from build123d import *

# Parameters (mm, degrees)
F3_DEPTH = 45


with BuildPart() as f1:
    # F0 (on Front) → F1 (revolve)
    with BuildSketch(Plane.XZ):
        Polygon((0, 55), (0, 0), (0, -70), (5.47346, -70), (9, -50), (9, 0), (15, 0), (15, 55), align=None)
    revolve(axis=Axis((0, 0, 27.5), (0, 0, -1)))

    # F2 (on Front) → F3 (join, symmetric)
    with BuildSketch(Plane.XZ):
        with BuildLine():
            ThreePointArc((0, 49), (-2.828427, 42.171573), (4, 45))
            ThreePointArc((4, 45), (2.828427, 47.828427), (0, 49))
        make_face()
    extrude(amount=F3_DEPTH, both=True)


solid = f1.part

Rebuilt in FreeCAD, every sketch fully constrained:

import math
import FreeCAD as App
import Part
import Sketcher
from FreeCAD import Vector
Q = App.Units.Quantity


def add_polygon(sketch, points):
    """Adds a closed chain of lines whose ends are joined by coincident constraints."""
    first, n = sketch.GeometryCount, len(points)
    for a, b in zip(points, points[1:] + points[:1]):
        sketch.addGeometry(Part.LineSegment(App.Vector(*a, 0), App.Vector(*b, 0)), False)
    for i in range(n):
        sketch.addConstraint(Sketcher.Constraint("Coincident", first + i, 2, first + (i + 1) % n, 1))

doc = App.newDocument("Part")
body = doc.addObject("PartDesign::Body", "Body")

sketch1 = body.newObject("Sketcher::SketchObject", "Sketch")
sketch1.AttachmentSupport = (doc.getObject("XZ_Plane"), [""])
sketch1.MapMode = "FlatFace"
add_polygon(sketch1, [(0, 55), (0, -70), (5.47346, -70), (9, -50), (9, 0), (15, 0), (15, 55)])
sketch1.addConstraint([
    Sketcher.Constraint("Vertical", 0),
    Sketcher.Constraint("Horizontal", 1),
    Sketcher.Constraint("Vertical", 3),
    Sketcher.Constraint("Horizontal", 4),
    Sketcher.Constraint("Vertical", 5),
    Sketcher.Constraint("Horizontal", 6),
    Sketcher.Constraint("PointOnObject", 0, 2, -2),
    Sketcher.Constraint("PointOnObject", 3, 2, -1),
    Sketcher.Constraint("DistanceX", 4, 1, 4, 2, Q("6 mm")),
    Sketcher.Constraint("DistanceX", 6, 2, 6, 1, Q("15 mm")),
    Sketcher.Constraint("DistanceY", 0, 2, 0, 1, Q("125 mm")),
    Sketcher.Constraint("DistanceY", 3, 1, 3, 2, Q("50 mm")),
    Sketcher.Constraint("DistanceY", 5, 1, 5, 2, Q("55 mm")),
    Sketcher.Constraint("Angle", 2, Q("79.999999 deg")),
])
revolution = body.newObject("PartDesign::Revolution", "Revolution")
revolution.Profile = sketch1
revolution.ReferenceAxis = (sketch1, ["V_Axis"])
revolution.Angle = 360

sketch2 = body.newObject("Sketcher::SketchObject", "Sketch001")
sketch2.AttachmentSupport = (doc.getObject("XZ_Plane"), [""])
sketch2.MapMode = "FlatFace"
sketch2.addGeometry([
    Part.ArcOfCircle(Part.Circle(Vector(0, 45, 0), Vector(0, 0, 1), 4), math.radians(90.000001), math.radians(359.999999)),
    Part.ArcOfCircle(Part.Circle(Vector(0, 45, 0), Vector(0, 0, 1), 4), math.radians(0.000006), math.radians(89.999994)),
], False)
sketch2.addConstraint([
    Sketcher.Constraint("Tangent", 0, 1, 1, 2),
    Sketcher.Constraint("Coincident", 1, 1, 0, 2),
    Sketcher.Constraint("PointOnObject", 0, 3, -2),
    Sketcher.Constraint("PointOnObject", 0, 1, -2),
    Sketcher.Constraint("Horizontal", 0, 3, 1, 1),
    Sketcher.Constraint("Radius", 0, Q("4 mm")),
    Sketcher.Constraint("DistanceY", -1, 1, 0, 3, Q("45 mm")),
])
pad1 = body.newObject("PartDesign::Pad", "Pad")
pad1.Profile = sketch2
pad1.Length = 90
pad1.Midplane = True

doc.recompute()
